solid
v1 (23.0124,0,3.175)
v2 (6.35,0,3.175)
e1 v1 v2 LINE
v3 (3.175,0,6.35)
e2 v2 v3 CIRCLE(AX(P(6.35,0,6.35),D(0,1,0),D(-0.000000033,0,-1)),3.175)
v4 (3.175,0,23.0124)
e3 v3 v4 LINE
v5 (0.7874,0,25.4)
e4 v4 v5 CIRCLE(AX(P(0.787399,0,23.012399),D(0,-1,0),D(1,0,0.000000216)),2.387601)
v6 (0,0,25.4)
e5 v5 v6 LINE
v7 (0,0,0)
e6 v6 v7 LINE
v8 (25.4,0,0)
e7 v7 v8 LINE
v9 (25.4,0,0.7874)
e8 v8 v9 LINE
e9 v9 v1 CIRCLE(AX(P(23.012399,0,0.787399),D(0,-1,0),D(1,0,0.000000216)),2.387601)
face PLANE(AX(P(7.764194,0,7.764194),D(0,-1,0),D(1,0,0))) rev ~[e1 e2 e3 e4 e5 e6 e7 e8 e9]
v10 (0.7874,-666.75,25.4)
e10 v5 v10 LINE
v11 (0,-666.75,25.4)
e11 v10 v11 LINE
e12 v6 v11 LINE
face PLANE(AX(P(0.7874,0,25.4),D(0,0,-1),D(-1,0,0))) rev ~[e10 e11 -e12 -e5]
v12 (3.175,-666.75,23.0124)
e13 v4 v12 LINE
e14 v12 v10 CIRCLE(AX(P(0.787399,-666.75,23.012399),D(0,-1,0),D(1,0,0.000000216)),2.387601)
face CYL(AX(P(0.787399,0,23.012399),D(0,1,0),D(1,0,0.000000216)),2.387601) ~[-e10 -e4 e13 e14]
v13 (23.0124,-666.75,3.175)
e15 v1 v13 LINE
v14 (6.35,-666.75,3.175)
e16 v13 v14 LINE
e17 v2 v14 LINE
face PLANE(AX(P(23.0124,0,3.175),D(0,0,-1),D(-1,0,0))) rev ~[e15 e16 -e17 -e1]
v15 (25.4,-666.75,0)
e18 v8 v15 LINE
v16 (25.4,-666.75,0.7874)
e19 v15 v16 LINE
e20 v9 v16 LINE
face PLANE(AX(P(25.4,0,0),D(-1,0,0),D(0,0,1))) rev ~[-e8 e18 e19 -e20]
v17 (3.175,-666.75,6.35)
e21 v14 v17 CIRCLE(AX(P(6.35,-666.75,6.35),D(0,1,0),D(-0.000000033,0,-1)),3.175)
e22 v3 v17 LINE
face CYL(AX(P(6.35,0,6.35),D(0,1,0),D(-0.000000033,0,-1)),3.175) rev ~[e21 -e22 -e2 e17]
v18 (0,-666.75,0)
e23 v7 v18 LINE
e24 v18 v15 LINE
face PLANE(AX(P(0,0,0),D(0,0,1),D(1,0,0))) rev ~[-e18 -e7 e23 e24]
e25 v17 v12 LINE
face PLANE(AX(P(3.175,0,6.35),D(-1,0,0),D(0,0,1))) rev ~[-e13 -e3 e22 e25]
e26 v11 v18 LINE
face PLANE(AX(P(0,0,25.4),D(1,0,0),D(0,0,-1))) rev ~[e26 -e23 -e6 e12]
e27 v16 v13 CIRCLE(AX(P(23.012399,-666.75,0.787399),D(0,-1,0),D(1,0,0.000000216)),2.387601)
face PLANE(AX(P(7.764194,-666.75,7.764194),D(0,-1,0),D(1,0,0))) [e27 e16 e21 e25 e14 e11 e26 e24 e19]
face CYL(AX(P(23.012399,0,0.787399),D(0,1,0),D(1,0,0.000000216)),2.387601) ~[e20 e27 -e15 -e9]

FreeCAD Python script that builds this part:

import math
import FreeCAD as App
import Part
import Sketcher
Q = App.Units.Quantity

doc = App.newDocument("Part")
body = doc.addObject("PartDesign::Body", "Body")

# Sketch on XZ plane
sketch1 = body.newObject("Sketcher::SketchObject", "Sketch")
sketch1.AttachmentSupport = (doc.getObject("XZ_Plane"), [""])
sketch1.MapMode = "FlatFace"
sketch1.addGeometry([
    Part.LineSegment(App.Vector(0, 25.4, 0), App.Vector(0, 0, 0)),  # 0
    Part.LineSegment(App.Vector(0, 0, 0), App.Vector(25.4, 0, 0)),  # 1
    Part.LineSegment(App.Vector(25.4, 0, 0), App.Vector(25.4, 0.8, 0)),  # 2
    Part.ArcOfCircle(Part.Circle(App.Vector(23, 0.8, 0), App.Vector(0, 0, 1), 2.4), math.radians(0), math.radians(90)),  # 3
    Part.LineSegment(App.Vector(23, 3.2, 0), App.Vector(6.3, 3.2, 0)),  # 4
    Part.ArcOfCircle(Part.Circle(App.Vector(6.4, 6.4, 0), App.Vector(0, 0, 1), 3.2), math.radians(-180), math.radians(-90)),  # 5
    Part.LineSegment(App.Vector(3.2, 6.3, 0), App.Vector(3.2, 23, 0)),  # 6
    Part.ArcOfCircle(Part.Circle(App.Vector(0.8, 23, 0), App.Vector(0, 0, 1), 2.4), math.radians(0), math.radians(90)),  # 7
    Part.LineSegment(App.Vector(0.8, 25.4, 0), App.Vector(0, 25.4, 0)),  # 8
], False)
sketch1.addConstraint([
    Sketcher.Constraint("Coincident", 0, 2, 1, 1),
    Sketcher.Constraint("Coincident", 1, 2, 2, 1),
    Sketcher.Constraint("Tangent", 2, 2, 3, 1),
    Sketcher.Constraint("Tangent", 3, 2, 4, 1),
    Sketcher.Constraint("Tangent", 4, 2, 5, 2),
    Sketcher.Constraint("Tangent", 5, 1, 6, 1),
    Sketcher.Constraint("Tangent", 6, 2, 7, 1),
    Sketcher.Constraint("Tangent", 7, 2, 8, 1),
    Sketcher.Constraint("Coincident", 8, 2, 0, 1),
    Sketcher.Constraint("Vertical", 0),
    Sketcher.Constraint("Horizontal", 1),
    Sketcher.Constraint("Vertical", 2),
    Sketcher.Constraint("Horizontal", 4),
    Sketcher.Constraint("Vertical", 6),
    Sketcher.Constraint("Horizontal", 8),
    Sketcher.Constraint("Coincident", 0, 2, -1, 1),
    Sketcher.Constraint("Equal", 3, 7),
    Sketcher.Constraint("Equal", 1, 0),
    Sketcher.Constraint("Equal", 8, 2),
    Sketcher.Constraint("DistanceX", 1, 1, 1, 2, Q("1 in")),
    Sketcher.Constraint("Radius", 3, Q("0.094 in")),
    Sketcher.Constraint("Radius", 5, Q("0.125 in")),
    Sketcher.Constraint("DistanceX", 4, 2, 4, 1, Q("0.656 in")),
])
pad1 = body.newObject("PartDesign::Pad", "Pad")
pad1.Profile = sketch1
pad1.Length = Q("26.25 in")

doc.recompute()
